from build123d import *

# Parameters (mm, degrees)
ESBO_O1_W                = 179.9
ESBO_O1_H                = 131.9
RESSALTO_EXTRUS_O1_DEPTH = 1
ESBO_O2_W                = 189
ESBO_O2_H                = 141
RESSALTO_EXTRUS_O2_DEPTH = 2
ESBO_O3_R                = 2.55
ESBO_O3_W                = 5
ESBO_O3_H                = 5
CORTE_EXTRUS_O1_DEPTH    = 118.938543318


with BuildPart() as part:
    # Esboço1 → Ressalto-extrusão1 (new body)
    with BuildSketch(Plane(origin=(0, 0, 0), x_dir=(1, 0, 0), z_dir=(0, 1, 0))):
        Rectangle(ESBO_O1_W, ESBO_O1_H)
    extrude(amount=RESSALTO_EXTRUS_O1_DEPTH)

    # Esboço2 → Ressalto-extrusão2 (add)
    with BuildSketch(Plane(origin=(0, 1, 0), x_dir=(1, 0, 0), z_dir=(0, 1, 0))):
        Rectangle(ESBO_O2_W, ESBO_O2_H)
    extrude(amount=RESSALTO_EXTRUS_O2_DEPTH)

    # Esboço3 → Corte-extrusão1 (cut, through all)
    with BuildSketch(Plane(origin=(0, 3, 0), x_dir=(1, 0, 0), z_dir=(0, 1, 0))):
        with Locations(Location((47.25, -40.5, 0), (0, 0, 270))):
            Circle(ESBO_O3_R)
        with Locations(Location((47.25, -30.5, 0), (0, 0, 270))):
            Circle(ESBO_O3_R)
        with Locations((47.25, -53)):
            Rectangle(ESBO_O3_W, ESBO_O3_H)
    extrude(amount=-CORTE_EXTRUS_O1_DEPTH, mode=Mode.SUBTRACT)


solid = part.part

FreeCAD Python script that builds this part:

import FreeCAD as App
import Part
import Sketcher


def add_polygon(sketch, points):
    """Adds a closed chain of lines whose ends are joined by coincident constraints."""
    first, n = sketch.GeometryCount, len(points)
    for a, b in zip(points, points[1:] + points[:1]):
        sketch.addGeometry(Part.LineSegment(App.Vector(*a, 0), App.Vector(*b, 0)), False)
    for i in range(n):
        sketch.addConstraint(Sketcher.Constraint("Coincident", first + i, 2, first + (i + 1) % n, 1))

doc = App.newDocument("Part")
body = doc.addObject("PartDesign::Body", "Body")

# Sketch on XZ plane
sketch1 = body.newObject("Sketcher::SketchObject", "Sketch")
sketch1.AttachmentSupport = (doc.getObject("XZ_Plane"), [""])
sketch1.MapMode = "FlatFace"
add_polygon(sketch1, [(-90, -66), (-90, 66), (90, 66), (90, -66)])  # lines 0-3
sketch1.addConstraint(Sketcher.Constraint("Vertical", 0))
sketch1.addConstraint(Sketcher.Constraint("Horizontal", 1))
sketch1.addConstraint(Sketcher.Constraint("Vertical", 2))
sketch1.addConstraint(Sketcher.Constraint("Horizontal", 3))
sketch1.addConstraint(Sketcher.Constraint("Symmetric", 0, 2, 2, 2, -1, 1))
sketch1.addConstraint(Sketcher.Constraint("DistanceX", 1, 1, 1, 2, 179.9))
sketch1.addConstraint(Sketcher.Constraint("DistanceY", 0, 1, 0, 2, 131.9))
pad1 = body.newObject("PartDesign::Pad", "Pad")
pad1.Profile = sketch1
pad1.Length = 1
pad1.Reversed = True

# Sketch on XZ plane
sketch2 = body.newObject("Sketcher::SketchObject", "Sketch001")
sketch2.AttachmentSupport = (doc.getObject("XZ_Plane"), [""])
sketch2.MapMode = "FlatFace"
sketch2.AttachmentOffset = App.Placement(App.Vector(0, 0, -1), App.Rotation())
add_polygon(sketch2, [(-94, -70), (-94, 70), (94, 70), (94, -70)])  # lines 0-3
sketch2.addConstraint(Sketcher.Constraint("Vertical", 0))
sketch2.addConstraint(Sketcher.Constraint("Horizontal", 1))
sketch2.addConstraint(Sketcher.Constraint("Vertical", 2))
sketch2.addConstraint(Sketcher.Constraint("Horizontal", 3))
sketch2.addConstraint(Sketcher.Constraint("Symmetric", 0, 2, 2, 2, -1, 1))
sketch2.addConstraint(Sketcher.Constraint("DistanceX", 1, 1, 1, 2, 189.0))
sketch2.addConstraint(Sketcher.Constraint("DistanceY", 0, 1, 0, 2, 141.0))
pad2 = body.newObject("PartDesign::Pad", "Pad001")
pad2.Profile = sketch2
pad2.Length = 2
pad2.Reversed = True

# Sketch on XZ plane
sketch3 = body.newObject("Sketcher::SketchObject", "Sketch002")
sketch3.AttachmentSupport = (doc.getObject("XZ_Plane"), [""])
sketch3.MapMode = "FlatFace"
sketch3.AttachmentOffset = App.Placement(App.Vector(0, 0, -3), App.Rotation())
sketch3.addGeometry(Part.Circle(App.Vector(47.2, 40.5, 0), App.Vector(0, 0, 1), 2.5), False)  # 0
sketch3.addGeometry(Part.Circle(App.Vector(47.2, 30.5, 0), App.Vector(0, 0, 1), 2.5), False)  # 1
add_polygon(sketch3, [(44.8, 50.5), (44.8, 55.5), (49.8, 55.5), (49.8, 50.5)])  # lines 2-5
sketch3.addConstraint(Sketcher.Constraint("Vertical", 2))
sketch3.addConstraint(Sketcher.Constraint("Horizontal", 3))
sketch3.addConstraint(Sketcher.Constraint("Vertical", 4))
sketch3.addConstraint(Sketcher.Constraint("Horizontal", 5))
sketch3.addConstraint(Sketcher.Constraint("Equal", 0, 1))
sketch3.addConstraint(Sketcher.Constraint("Vertical", 0, 3, 1, 3))
sketch3.addConstraint(Sketcher.Constraint("Equal", 5, 2))
sketch3.addConstraint(Sketcher.Constraint("Diameter", 0, 5.1))
sketch3.addConstraint(Sketcher.Constraint("DistanceX", 3, 1, 3, 2, 5.0))
sketch3.addConstraint(Sketcher.Constraint("DistanceY", 1, 3, 0, 3, 10.0))
sketch3.addConstraint(Sketcher.Constraint("DistanceY", 0, 3, 2, 2, 15.0))
sketch3.addConstraint(Sketcher.Constraint("DistanceY", -1, 1, 0, 3, 40.5))
sketch3.addConstraint(Sketcher.Constraint("DistanceX", 2, 2, 0, 3, 2.5))
sketch3.addConstraint(Sketcher.Constraint("DistanceX", -1, 1, 0, 3, 47.25))
pocket1 = body.newObject("PartDesign::Pocket", "Pocket")
pocket1.Profile = sketch3
pocket1.Type = "ThroughAll"
pocket1.Reversed = True

doc.recompute()
